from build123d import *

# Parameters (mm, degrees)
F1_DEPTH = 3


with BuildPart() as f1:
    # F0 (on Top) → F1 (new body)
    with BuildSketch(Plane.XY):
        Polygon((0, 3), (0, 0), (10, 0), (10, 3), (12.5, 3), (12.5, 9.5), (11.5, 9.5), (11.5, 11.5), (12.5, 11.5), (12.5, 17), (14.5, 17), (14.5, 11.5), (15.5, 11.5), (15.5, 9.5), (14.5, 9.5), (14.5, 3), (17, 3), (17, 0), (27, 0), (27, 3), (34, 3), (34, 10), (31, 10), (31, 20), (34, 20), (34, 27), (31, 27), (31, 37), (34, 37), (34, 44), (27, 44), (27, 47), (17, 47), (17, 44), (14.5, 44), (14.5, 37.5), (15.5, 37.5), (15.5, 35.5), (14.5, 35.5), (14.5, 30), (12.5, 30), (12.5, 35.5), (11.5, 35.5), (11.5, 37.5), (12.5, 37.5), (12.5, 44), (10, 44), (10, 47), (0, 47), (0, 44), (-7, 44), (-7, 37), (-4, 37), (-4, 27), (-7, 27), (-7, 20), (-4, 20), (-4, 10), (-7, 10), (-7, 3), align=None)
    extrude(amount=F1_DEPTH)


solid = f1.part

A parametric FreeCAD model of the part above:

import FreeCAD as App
import Part
import Sketcher
Q = App.Units.Quantity

doc = App.newDocument("Part")
body = doc.addObject("PartDesign::Body", "Body")

# Sketch on XY plane
sketch1 = doc.addObject("Sketcher::SketchObject", "Sketch")
body.addObject(sketch1)
sketch1.AttachmentSupport = (doc.XY_Plane, [""])
sketch1.MapMode = "FlatFace"
sketch1.addGeometry([
    Part.LineSegment(App.Vector(0, 3, 0), App.Vector(0, 0, 0)),  # 0
    Part.LineSegment(App.Vector(0, 0, 0), App.Vector(10, 0, 0)),  # 1
    Part.LineSegment(App.Vector(10, 0, 0), App.Vector(10, 3, 0)),  # 2
    Part.LineSegment(App.Vector(10, 3, 0), App.Vector(12.5, 3, 0)),  # 3
    Part.LineSegment(App.Vector(12.5, 3, 0), App.Vector(12.5, 9.5, 0)),  # 4
    Part.LineSegment(App.Vector(12.5, 9.5, 0), App.Vector(11.5, 9.5, 0)),  # 5
    Part.LineSegment(App.Vector(11.5, 9.5, 0), App.Vector(11.5, 11.5, 0)),  # 6
    Part.LineSegment(App.Vector(11.5, 11.5, 0), App.Vector(12.5, 11.5, 0)),  # 7
    Part.LineSegment(App.Vector(12.5, 11.5, 0), App.Vector(12.5, 17, 0)),  # 8
    Part.LineSegment(App.Vector(12.5, 17, 0), App.Vector(14.5, 17, 0)),  # 9
    Part.LineSegment(App.Vector(14.5, 17, 0), App.Vector(14.5, 11.5, 0)),  # 10
    Part.LineSegment(App.Vector(14.5, 11.5, 0), App.Vector(15.5, 11.5, 0)),  # 11
    Part.LineSegment(App.Vector(15.5, 11.5, 0), App.Vector(15.5, 9.5, 0)),  # 12
    Part.LineSegment(App.Vector(15.5, 9.5, 0), App.Vector(14.5, 9.5, 0)),  # 13
    Part.LineSegment(App.Vector(14.5, 9.5, 0), App.Vector(14.5, 3, 0)),  # 14
    Part.LineSegment(App.Vector(14.5, 3, 0), App.Vector(17, 3, 0)),  # 15
    Part.LineSegment(App.Vector(17, 3, 0), App.Vector(17, 0, 0)),  # 16
    Part.LineSegment(App.Vector(17, 0, 0), App.Vector(27, 0, 0)),  # 17
    Part.LineSegment(App.Vector(27, 0, 0), App.Vector(27, 3, 0)),  # 18
    Part.LineSegment(App.Vector(27, 3, 0), App.Vector(34, 3, 0)),  # 19
    Part.LineSegment(App.Vector(34, 3, 0), App.Vector(34, 10, 0)),  # 20
    Part.LineSegment(App.Vector(34, 10, 0), App.Vector(31, 10, 0)),  # 21
    Part.LineSegment(App.Vector(31, 10, 0), App.Vector(31, 20, 0)),  # 22
    Part.LineSegment(App.Vector(31, 20, 0), App.Vector(34, 20, 0)),  # 23
    Part.LineSegment(App.Vector(34, 20, 0), App.Vector(34, 27, 0)),  # 24
    Part.LineSegment(App.Vector(34, 27, 0), App.Vector(31, 27, 0)),  # 25
    Part.LineSegment(App.Vector(31, 27, 0), App.Vector(31, 37, 0)),  # 26
    Part.LineSegment(App.Vector(31, 37, 0), App.Vector(34, 37, 0)),  # 27
    Part.LineSegment(App.Vector(34, 37, 0), App.Vector(34, 44, 0)),  # 28
    Part.LineSegment(App.Vector(34, 44, 0), App.Vector(27, 44, 0)),  # 29
    Part.LineSegment(App.Vector(27, 44, 0), App.Vector(27, 47, 0)),  # 30
    Part.LineSegment(App.Vector(27, 47, 0), App.Vector(17, 47, 0)),  # 31
    Part.LineSegment(App.Vector(17, 47, 0), App.Vector(17, 44, 0)),  # 32
    Part.LineSegment(App.Vector(17, 44, 0), App.Vector(14.5, 44, 0)),  # 33
    Part.LineSegment(App.Vector(14.5, 44, 0), App.Vector(14.5, 37.5, 0)),  # 34
    Part.LineSegment(App.Vector(14.5, 37.5, 0), App.Vector(15.5, 37.5, 0)),  # 35
    Part.LineSegment(App.Vector(15.5, 37.5, 0), App.Vector(15.5, 35.5, 0)),  # 36
    Part.LineSegment(App.Vector(15.5, 35.5, 0), App.Vector(14.5, 35.5, 0)),  # 37
    Part.LineSegment(App.Vector(14.5, 35.5, 0), App.Vector(14.5, 30, 0)),  # 38
    Part.LineSegment(App.Vector(14.5, 30, 0), App.Vector(12.5, 30, 0)),  # 39
    Part.LineSegment(App.Vector(12.5, 30, 0), App.Vector(12.5, 35.5, 0)),  # 40
    Part.LineSegment(App.Vector(12.5, 35.5, 0), App.Vector(11.5, 35.5, 0)),  # 41
    Part.LineSegment(App.Vector(11.5, 35.5, 0), App.Vector(11.5, 37.5, 0)),  # 42
    Part.LineSegment(App.Vector(11.5, 37.5, 0), App.Vector(12.5, 37.5, 0)),  # 43
    Part.LineSegment(App.Vector(12.5, 37.5, 0), App.Vector(12.5, 44, 0)),  # 44
    Part.LineSegment(App.Vector(12.5, 44, 0), App.Vector(10, 44, 0)),  # 45
    Part.LineSegment(App.Vector(10, 44, 0), App.Vector(10, 47, 0)),  # 46
    Part.LineSegment(App.Vector(10, 47, 0), App.Vector(0, 47, 0)),  # 47
    Part.LineSegment(App.Vector(0, 47, 0), App.Vector(0, 44, 0)),  # 48
    Part.LineSegment(App.Vector(0, 44, 0), App.Vector(-7, 44, 0)),  # 49
    Part.LineSegment(App.Vector(-7, 44, 0), App.Vector(-7, 37, 0)),  # 50
    Part.LineSegment(App.Vector(-7, 37, 0), App.Vector(-4, 37, 0)),  # 51
    Part.LineSegment(App.Vector(-4, 37, 0), App.Vector(-4, 27, 0)),  # 52
    Part.LineSegment(App.Vector(-4, 27, 0), App.Vector(-7, 27, 0)),  # 53
    Part.LineSegment(App.Vector(-7, 27, 0), App.Vector(-7, 20, 0)),  # 54
    Part.LineSegment(App.Vector(-7, 20, 0), App.Vector(-4, 20, 0)),  # 55
    Part.LineSegment(App.Vector(-4, 20, 0), App.Vector(-4, 10, 0)),  # 56
    Part.LineSegment(App.Vector(-4, 10, 0), App.Vector(-7, 10, 0)),  # 57
    Part.LineSegment(App.Vector(-7, 10, 0), App.Vector(-7, 3, 0)),  # 58
    Part.LineSegment(App.Vector(-7, 3, 0), App.Vector(0, 3, 0)),  # 59
], False)
sketch1.addConstraint([
    Sketcher.Constraint("Coincident", 0, 2, 1, 1),
    Sketcher.Constraint("Coincident", 1, 2, 2, 1),
    Sketcher.Constraint("Coincident", 2, 2, 3, 1),
    Sketcher.Constraint("Coincident", 3, 2, 4, 1),
    Sketcher.Constraint("Coincident", 4, 2, 5, 1),
    Sketcher.Constraint("Coincident", 5, 2, 6, 1),
    Sketcher.Constraint("Coincident", 6, 2, 7, 1),
    Sketcher.Constraint("Coincident", 7, 2, 8, 1),
    Sketcher.Constraint("Coincident", 8, 2, 9, 1),
    Sketcher.Constraint("Coincident", 9, 2, 10, 1),
    Sketcher.Constraint("Coincident", 10, 2, 11, 1),
    Sketcher.Constraint("Coincident", 11, 2, 12, 1),
    Sketcher.Constraint("Coincident", 12, 2, 13, 1),
    Sketcher.Constraint("Coincident", 13, 2, 14, 1),
    Sketcher.Constraint("Coincident", 14, 2, 15, 1),
    Sketcher.Constraint("Coincident", 15, 2, 16, 1),
    Sketcher.Constraint("Coincident", 16, 2, 17, 1),
    Sketcher.Constraint("Coincident", 17, 2, 18, 1),
    Sketcher.Constraint("Coincident", 18, 2, 19, 1),
    Sketcher.Constraint("Coincident", 19, 2, 20, 1),
    Sketcher.Constraint("Coincident", 20, 2, 21, 1),
    Sketcher.Constraint("Coincident", 21, 2, 22, 1),
    Sketcher.Constraint("Coincident", 22, 2, 23, 1),
    Sketcher.Constraint("Coincident", 23, 2, 24, 1),
    Sketcher.Constraint("Coincident", 24, 2, 25, 1),
    Sketcher.Constraint("Coincident", 25, 2, 26, 1),
    Sketcher.Constraint("Coincident", 26, 2, 27, 1),
    Sketcher.Constraint("Coincident", 27, 2, 28, 1),
    Sketcher.Constraint("Coincident", 28, 2, 29, 1),
    Sketcher.Constraint("Coincident", 29, 2, 30, 1),
    Sketcher.Constraint("Coincident", 30, 2, 31, 1),
    Sketcher.Constraint("Coincident", 31, 2, 32, 1),
    Sketcher.Constraint("Coincident", 32, 2, 33, 1),
    Sketcher.Constraint("Coincident", 33, 2, 34, 1),
    Sketcher.Constraint("Coincident", 34, 2, 35, 1),
    Sketcher.Constraint("Coincident", 35, 2, 36, 1),
    Sketcher.Constraint("Coincident", 36, 2, 37, 1),
    Sketcher.Constraint("Coincident", 37, 2, 38, 1),
    Sketcher.Constraint("Coincident", 38, 2, 39, 1),
    Sketcher.Constraint("Coincident", 39, 2, 40, 1),
    Sketcher.Constraint("Coincident", 40, 2, 41, 1),
    Sketcher.Constraint("Coincident", 41, 2, 42, 1),
    Sketcher.Constraint("Coincident", 42, 2, 43, 1),
    Sketcher.Constraint("Coincident", 43, 2, 44, 1),
    Sketcher.Constraint("Coincident", 44, 2, 45, 1),
    Sketcher.Constraint("Coincident", 45, 2, 46, 1),
    Sketcher.Constraint("Coincident", 46, 2, 47, 1),
    Sketcher.Constraint("Coincident", 47, 2, 48, 1),
    Sketcher.Constraint("Coincident", 48, 2, 49, 1),
    Sketcher.Constraint("Coincident", 49, 2, 50, 1),
    Sketcher.Constraint("Coincident", 50, 2, 51, 1),
    Sketcher.Constraint("Coincident", 51, 2, 52, 1),
    Sketcher.Constraint("Coincident", 52, 2, 53, 1),
    Sketcher.Constraint("Coincident", 53, 2, 54, 1),
    Sketcher.Constraint("Coincident", 54, 2, 55, 1),
    Sketcher.Constraint("Coincident", 55, 2, 56, 1),
    Sketcher.Constraint("Coincident", 56, 2, 57, 1),
    Sketcher.Constraint("Coincident", 57, 2, 58, 1),
    Sketcher.Constraint("Coincident", 58, 2, 59, 1),
    Sketcher.Constraint("Coincident", 59, 2, 0, 1),
    Sketcher.Constraint("Vertical", 0),
    Sketcher.Constraint("Horizontal", 1),
    Sketcher.Constraint("Vertical", 2),
    Sketcher.Constraint("Horizontal", 3),
    Sketcher.Constraint("Vertical", 4),
    Sketcher.Constraint("Horizontal", 5),
    Sketcher.Constraint("Vertical", 6),
    Sketcher.Constraint("Horizontal", 7),
    Sketcher.Constraint("Vertical", 8),
    Sketcher.Constraint("Horizontal", 9),
    Sketcher.Constraint("Vertical", 10),
    Sketcher.Constraint("Horizontal", 11),
    Sketcher.Constraint("Vertical", 12),
    Sketcher.Constraint("Horizontal", 13),
    Sketcher.Constraint("Vertical", 14),
    Sketcher.Constraint("Horizontal", 15),
    Sketcher.Constraint("Vertical", 16),
    Sketcher.Constraint("Horizontal", 17),
    Sketcher.Constraint("Vertical", 18),
    Sketcher.Constraint("Horizontal", 19),
    Sketcher.Constraint("Vertical", 20),
    Sketcher.Constraint("Horizontal", 21),
    Sketcher.Constraint("Vertical", 22),
    Sketcher.Constraint("Horizontal", 23),
    Sketcher.Constraint("Vertical", 24),
    Sketcher.Constraint("Horizontal", 25),
    Sketcher.Constraint("Vertical", 26),
    Sketcher.Constraint("Horizontal", 27),
    Sketcher.Constraint("Vertical", 28),
    Sketcher.Constraint("Horizontal", 29),
    Sketcher.Constraint("Vertical", 30),
    Sketcher.Constraint("Horizontal", 31),
    Sketcher.Constraint("Vertical", 32),
    Sketcher.Constraint("Horizontal", 33),
    Sketcher.Constraint("Vertical", 34),
    Sketcher.Constraint("Horizontal", 35),
    Sketcher.Constraint("Vertical", 36),
    Sketcher.Constraint("Horizontal", 37),
    Sketcher.Constraint("Vertical", 38),
    Sketcher.Constraint("Horizontal", 39),
    Sketcher.Constraint("Vertical", 40),
    Sketcher.Constraint("Horizontal", 41),
    Sketcher.Constraint("Vertical", 42),
    Sketcher.Constraint("Horizontal", 43),
    Sketcher.Constraint("Vertical", 44),
    Sketcher.Constraint("Horizontal", 45),
    Sketcher.Constraint("Vertical", 46),
    Sketcher.Constraint("Horizontal", 47),
    Sketcher.Constraint("Vertical", 48),
    Sketcher.Constraint("Horizontal", 49),
    Sketcher.Constraint("Vertical", 50),
    Sketcher.Constraint("Horizontal", 51),
    Sketcher.Constraint("Vertical", 52),
    Sketcher.Constraint("Horizontal", 53),
    Sketcher.Constraint("Vertical", 54),
    Sketcher.Constraint("Horizontal", 55),
    Sketcher.Constraint("Vertical", 56),
    Sketcher.Constraint("Horizontal", 57),
    Sketcher.Constraint("Vertical", 58),
    Sketcher.Constraint("Horizontal", 59),
    Sketcher.Constraint("Coincident", 0, 2, -1, 1),
    Sketcher.Constraint("PointOnObject", 16, 2, -1),
    Sketcher.Constraint("PointOnObject", 47, 2, -2),
    Sketcher.Constraint("Horizontal", 7, 2, 10, 2),
    Sketcher.Constraint("Horizontal", 5, 2, 12, 2),
    Sketcher.Constraint("Horizontal", 3, 2, 14, 2),
    Sketcher.Constraint("Horizontal", 15, 2, 18, 2),
    Sketcher.Constraint("Horizontal", 29, 2, 32, 2),
    Sketcher.Constraint("Horizontal", 37, 2, 40, 2),
    Sketcher.Constraint("Horizontal", 35, 2, 42, 2),
    Sketcher.Constraint("Horizontal", 33, 2, 44, 2),
    Sketcher.Constraint("Horizontal", 31, 2, 46, 2),
    Sketcher.Constraint("Horizontal", 45, 2, 48, 2),
    Sketcher.Constraint("Horizontal", 27, 2, 50, 2),
    Sketcher.Constraint("Horizontal", 25, 2, 52, 2),
    Sketcher.Constraint("Horizontal", 23, 2, 54, 2),
    Sketcher.Constraint("Horizontal", 21, 2, 56, 2),
    Sketcher.Constraint("Horizontal", 19, 2, 58, 2),
    Sketcher.Constraint("Vertical", 4, 2, 7, 2),
    Sketcher.Constraint("Vertical", 10, 2, 13, 2),
    Sketcher.Constraint("Vertical", 20, 2, 23, 2),
    Sketcher.Constraint("Vertical", 22, 2, 25, 2),
    Sketcher.Constraint("Vertical", 24, 2, 27, 2),
    Sketcher.Constraint("Vertical", 18, 2, 29, 2),
    Sketcher.Constraint("Vertical", 16, 2, 31, 2),
    Sketcher.Constraint("Vertical", 14, 2, 33, 2),
    Sketcher.Constraint("Vertical", 12, 2, 35, 2),
    Sketcher.Constraint("Vertical", 34, 2, 37, 2),
    Sketcher.Constraint("Vertical", 8, 2, 39, 2),
    Sketcher.Constraint("Vertical", 6, 2, 41, 2),
    Sketcher.Constraint("Vertical", 40, 2, 43, 2),
    Sketcher.Constraint("Vertical", 2, 2, 45, 2),
    Sketcher.Constraint("Vertical", 50, 2, 53, 2),
    Sketcher.Constraint("Vertical", 52, 2, 55, 2),
    Sketcher.Constraint("Vertical", 54, 2, 57, 2),
    Sketcher.Constraint("Equal", 7, 11),
    Sketcher.Constraint("Equal", 3, 15),
    Sketcher.Constraint("Equal", 1, 17),
    Sketcher.Constraint("Equal", 29, 49),
    Sketcher.Constraint("Equal", 27, 51),
    Sketcher.Constraint("Equal", 57, 0),
    Sketcher.Constraint("Equal", 39, 6),
    Sketcher.Constraint("Equal", 59, 20),
    Sketcher.Constraint("Equal", 47, 22),
    Sketcher.Constraint("Equal", 20, 24),
    Sketcher.Constraint("Equal", 22, 26),
    Sketcher.Constraint("Equal", 24, 28),
    Sketcher.Constraint("Equal", 18, 30),
    Sketcher.Constraint("Equal", 14, 34),
    Sketcher.Constraint("Equal", 12, 36),
    Sketcher.Constraint("Equal", 10, 38),
    Sketcher.Constraint("DistanceX", 1, 1, 1, 2, Q("10 mm")),
    Sketcher.Constraint("DistanceX", 5, 2, 5, 1, Q("1 mm")),
    Sketcher.Constraint("DistanceX", 9, 1, 9, 2, Q("2 mm")),
    Sketcher.Constraint("DistanceX", 19, 1, 19, 2, Q("7 mm")),
    Sketcher.Constraint("DistanceX", 21, 2, 21, 1, Q("3 mm")),
    Sketcher.Constraint("DistanceX", 3, 1, 3, 2, Q("2.5 mm")),
    Sketcher.Constraint("DistanceY", 4, 1, 4, 2, Q("6.5 mm")),
    Sketcher.Constraint("DistanceY", 8, 1, 8, 2, Q("5.5 mm")),
])
pad1 = doc.addObject("PartDesign::Pad", "Pad")
body.addObject(pad1)
pad1.Profile = sketch1
pad1.Length = 3

doc.recompute()
